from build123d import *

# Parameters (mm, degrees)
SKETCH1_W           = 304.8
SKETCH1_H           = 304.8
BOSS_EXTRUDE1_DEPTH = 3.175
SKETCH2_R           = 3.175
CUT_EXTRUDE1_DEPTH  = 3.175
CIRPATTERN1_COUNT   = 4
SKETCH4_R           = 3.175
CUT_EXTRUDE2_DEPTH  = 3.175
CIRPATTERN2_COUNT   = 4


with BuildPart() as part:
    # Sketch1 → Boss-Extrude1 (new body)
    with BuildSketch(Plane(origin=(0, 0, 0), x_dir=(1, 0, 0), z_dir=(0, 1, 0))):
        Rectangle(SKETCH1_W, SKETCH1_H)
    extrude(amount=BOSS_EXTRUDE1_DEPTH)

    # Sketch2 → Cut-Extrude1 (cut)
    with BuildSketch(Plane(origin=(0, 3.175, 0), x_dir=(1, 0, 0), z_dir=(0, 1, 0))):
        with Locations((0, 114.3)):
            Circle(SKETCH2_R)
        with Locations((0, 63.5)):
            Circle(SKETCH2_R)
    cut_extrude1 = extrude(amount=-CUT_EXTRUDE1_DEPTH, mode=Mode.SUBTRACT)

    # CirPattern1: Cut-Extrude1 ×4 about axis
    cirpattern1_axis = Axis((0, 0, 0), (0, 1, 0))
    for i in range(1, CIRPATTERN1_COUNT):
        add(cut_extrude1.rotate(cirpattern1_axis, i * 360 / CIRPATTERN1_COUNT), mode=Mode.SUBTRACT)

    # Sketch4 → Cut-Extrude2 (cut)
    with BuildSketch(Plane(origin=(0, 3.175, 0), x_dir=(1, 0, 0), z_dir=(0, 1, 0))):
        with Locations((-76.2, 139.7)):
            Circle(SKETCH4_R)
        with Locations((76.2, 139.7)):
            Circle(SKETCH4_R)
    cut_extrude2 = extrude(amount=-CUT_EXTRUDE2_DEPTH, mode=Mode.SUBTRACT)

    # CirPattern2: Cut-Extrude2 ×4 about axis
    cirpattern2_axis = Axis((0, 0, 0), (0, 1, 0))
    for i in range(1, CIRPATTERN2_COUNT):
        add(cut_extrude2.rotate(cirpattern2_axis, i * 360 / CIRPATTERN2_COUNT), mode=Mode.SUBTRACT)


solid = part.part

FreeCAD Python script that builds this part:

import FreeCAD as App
import Part
import Sketcher
from FreeCAD import Vector
Q = App.Units.Quantity

doc = App.newDocument("Part")
body = doc.addObject("PartDesign::Body", "Body")

sketch1 = body.newObject("Sketcher::SketchObject", "Sketch")
sketch1.AttachmentSupport = (doc.getObject("XZ_Plane"), [""])
sketch1.MapMode = "FlatFace"
sketch1.addGeometry(Part.LineSegment(Vector(-152, -152, 0), Vector(-152, 152, 0)), False)
sketch1.addGeometry(Part.LineSegment(Vector(-152, 152, 0), Vector(152, 152, 0)), False)
sketch1.addGeometry(Part.LineSegment(Vector(152, 152, 0), Vector(152, -152, 0)), False)
sketch1.addGeometry(Part.LineSegment(Vector(152, -152, 0), Vector(-152, -152, 0)), False)
sketch1.addConstraint(Sketcher.Constraint("Coincident", 0, 2, 1, 1))
sketch1.addConstraint(Sketcher.Constraint("Coincident", 1, 2, 2, 1))
sketch1.addConstraint(Sketcher.Constraint("Coincident", 2, 2, 3, 1))
sketch1.addConstraint(Sketcher.Constraint("Coincident", 3, 2, 0, 1))
sketch1.addConstraint(Sketcher.Constraint("Vertical", 0))
sketch1.addConstraint(Sketcher.Constraint("Horizontal", 1))
sketch1.addConstraint(Sketcher.Constraint("Vertical", 2))
sketch1.addConstraint(Sketcher.Constraint("Horizontal", 3))
sketch1.addConstraint(Sketcher.Constraint("Symmetric", 0, 2, 2, 2, -1, 1))
sketch1.addConstraint(Sketcher.Constraint("Equal", 3, 0))
sketch1.addConstraint(Sketcher.Constraint("DistanceX", 1, 1, 1, 2, Q("12 in")))
pad1 = body.newObject("PartDesign::Pad", "Pad")
pad1.Profile = sketch1
pad1.Length = Q("0.125 in")
pad1.Reversed = True

sketch2 = body.newObject("Sketcher::SketchObject", "Sketch001")
sketch2.AttachmentSupport = (doc.getObject("XZ_Plane"), [""])
sketch2.MapMode = "FlatFace"
sketch2.AttachmentOffset = App.Placement(Vector(0, 0, -0.125 * 25.4), App.Rotation())
sketch2.addGeometry(Part.Circle(Vector(0, -114.3, 0), Vector(0, 0, 1), 3.2), False)
sketch2.addGeometry(Part.Circle(Vector(0, -63.5, 0), Vector(0, 0, 1), 3.2), False)
sketch2.addConstraint(Sketcher.Constraint("Equal", 0, 1))
sketch2.addConstraint(Sketcher.Constraint("PointOnObject", 0, 3, -2))
sketch2.addConstraint(Sketcher.Constraint("PointOnObject", 1, 3, -2))
sketch2.addConstraint(Sketcher.Constraint("Diameter", 0, Q("0.25 in")))
sketch2.addConstraint(Sketcher.Constraint("DistanceY", 0, 3, 1, 3, Q("2 in")))
sketch2.addConstraint(Sketcher.Constraint("DistanceY", 0, 3, -1, 1, Q("4.5 in")))
pocket1 = body.newObject("PartDesign::Pocket", "Pocket")
pocket1.Profile = sketch2
pocket1.Length = Q("0.125 in")
pocket1.Reversed = True
doc.recompute()

polarpattern = body.newObject("PartDesign::PolarPattern", "PolarPattern")
polarpattern.Originals = [pocket1]
polarpattern.Axis = (doc.getObject("Y_Axis"), [""])
polarpattern.Angle = 360
polarpattern.Occurrences = 4
body.Tip = polarpattern

sketch3 = body.newObject("Sketcher::SketchObject", "Sketch002")
sketch3.AttachmentSupport = (doc.getObject("XZ_Plane"), [""])
sketch3.MapMode = "FlatFace"
sketch3.AttachmentOffset = App.Placement(Vector(0, 0, -0.125 * 25.4), App.Rotation())
sketch3.addGeometry(Part.Circle(Vector(-76.2, -139.7, 0), Vector(0, 0, 1), 3.2), False)
sketch3.addGeometry(Part.Circle(Vector(76.2, -139.7, 0), Vector(0, 0, 1), 3.2), False)
sketch3.addConstraint(Sketcher.Constraint("Equal", 0, 1))
sketch3.addConstraint(Sketcher.Constraint("Symmetric", 0, 3, 1, 3, -2))
sketch3.addConstraint(Sketcher.Constraint("Diameter", 0, Q("0.25 in")))
sketch3.addConstraint(Sketcher.Constraint("DistanceX", 0, 3, -1, 1, Q("3 in")))
sketch3.addConstraint(Sketcher.Constraint("DistanceY", 0, 3, -1, 1, Q("5.5 in")))
pocket2 = body.newObject("PartDesign::Pocket", "Pocket001")
pocket2.Profile = sketch3
pocket2.Length = Q("0.125 in")
pocket2.Reversed = True
doc.recompute()

polarpattern2 = body.newObject("PartDesign::PolarPattern", "PolarPattern001")
polarpattern2.Originals = [pocket2]
polarpattern2.Axis = (doc.getObject("Y_Axis"), [""])
polarpattern2.Angle = 360
polarpattern2.Occurrences = 4
body.Tip = polarpattern2

doc.recompute()
